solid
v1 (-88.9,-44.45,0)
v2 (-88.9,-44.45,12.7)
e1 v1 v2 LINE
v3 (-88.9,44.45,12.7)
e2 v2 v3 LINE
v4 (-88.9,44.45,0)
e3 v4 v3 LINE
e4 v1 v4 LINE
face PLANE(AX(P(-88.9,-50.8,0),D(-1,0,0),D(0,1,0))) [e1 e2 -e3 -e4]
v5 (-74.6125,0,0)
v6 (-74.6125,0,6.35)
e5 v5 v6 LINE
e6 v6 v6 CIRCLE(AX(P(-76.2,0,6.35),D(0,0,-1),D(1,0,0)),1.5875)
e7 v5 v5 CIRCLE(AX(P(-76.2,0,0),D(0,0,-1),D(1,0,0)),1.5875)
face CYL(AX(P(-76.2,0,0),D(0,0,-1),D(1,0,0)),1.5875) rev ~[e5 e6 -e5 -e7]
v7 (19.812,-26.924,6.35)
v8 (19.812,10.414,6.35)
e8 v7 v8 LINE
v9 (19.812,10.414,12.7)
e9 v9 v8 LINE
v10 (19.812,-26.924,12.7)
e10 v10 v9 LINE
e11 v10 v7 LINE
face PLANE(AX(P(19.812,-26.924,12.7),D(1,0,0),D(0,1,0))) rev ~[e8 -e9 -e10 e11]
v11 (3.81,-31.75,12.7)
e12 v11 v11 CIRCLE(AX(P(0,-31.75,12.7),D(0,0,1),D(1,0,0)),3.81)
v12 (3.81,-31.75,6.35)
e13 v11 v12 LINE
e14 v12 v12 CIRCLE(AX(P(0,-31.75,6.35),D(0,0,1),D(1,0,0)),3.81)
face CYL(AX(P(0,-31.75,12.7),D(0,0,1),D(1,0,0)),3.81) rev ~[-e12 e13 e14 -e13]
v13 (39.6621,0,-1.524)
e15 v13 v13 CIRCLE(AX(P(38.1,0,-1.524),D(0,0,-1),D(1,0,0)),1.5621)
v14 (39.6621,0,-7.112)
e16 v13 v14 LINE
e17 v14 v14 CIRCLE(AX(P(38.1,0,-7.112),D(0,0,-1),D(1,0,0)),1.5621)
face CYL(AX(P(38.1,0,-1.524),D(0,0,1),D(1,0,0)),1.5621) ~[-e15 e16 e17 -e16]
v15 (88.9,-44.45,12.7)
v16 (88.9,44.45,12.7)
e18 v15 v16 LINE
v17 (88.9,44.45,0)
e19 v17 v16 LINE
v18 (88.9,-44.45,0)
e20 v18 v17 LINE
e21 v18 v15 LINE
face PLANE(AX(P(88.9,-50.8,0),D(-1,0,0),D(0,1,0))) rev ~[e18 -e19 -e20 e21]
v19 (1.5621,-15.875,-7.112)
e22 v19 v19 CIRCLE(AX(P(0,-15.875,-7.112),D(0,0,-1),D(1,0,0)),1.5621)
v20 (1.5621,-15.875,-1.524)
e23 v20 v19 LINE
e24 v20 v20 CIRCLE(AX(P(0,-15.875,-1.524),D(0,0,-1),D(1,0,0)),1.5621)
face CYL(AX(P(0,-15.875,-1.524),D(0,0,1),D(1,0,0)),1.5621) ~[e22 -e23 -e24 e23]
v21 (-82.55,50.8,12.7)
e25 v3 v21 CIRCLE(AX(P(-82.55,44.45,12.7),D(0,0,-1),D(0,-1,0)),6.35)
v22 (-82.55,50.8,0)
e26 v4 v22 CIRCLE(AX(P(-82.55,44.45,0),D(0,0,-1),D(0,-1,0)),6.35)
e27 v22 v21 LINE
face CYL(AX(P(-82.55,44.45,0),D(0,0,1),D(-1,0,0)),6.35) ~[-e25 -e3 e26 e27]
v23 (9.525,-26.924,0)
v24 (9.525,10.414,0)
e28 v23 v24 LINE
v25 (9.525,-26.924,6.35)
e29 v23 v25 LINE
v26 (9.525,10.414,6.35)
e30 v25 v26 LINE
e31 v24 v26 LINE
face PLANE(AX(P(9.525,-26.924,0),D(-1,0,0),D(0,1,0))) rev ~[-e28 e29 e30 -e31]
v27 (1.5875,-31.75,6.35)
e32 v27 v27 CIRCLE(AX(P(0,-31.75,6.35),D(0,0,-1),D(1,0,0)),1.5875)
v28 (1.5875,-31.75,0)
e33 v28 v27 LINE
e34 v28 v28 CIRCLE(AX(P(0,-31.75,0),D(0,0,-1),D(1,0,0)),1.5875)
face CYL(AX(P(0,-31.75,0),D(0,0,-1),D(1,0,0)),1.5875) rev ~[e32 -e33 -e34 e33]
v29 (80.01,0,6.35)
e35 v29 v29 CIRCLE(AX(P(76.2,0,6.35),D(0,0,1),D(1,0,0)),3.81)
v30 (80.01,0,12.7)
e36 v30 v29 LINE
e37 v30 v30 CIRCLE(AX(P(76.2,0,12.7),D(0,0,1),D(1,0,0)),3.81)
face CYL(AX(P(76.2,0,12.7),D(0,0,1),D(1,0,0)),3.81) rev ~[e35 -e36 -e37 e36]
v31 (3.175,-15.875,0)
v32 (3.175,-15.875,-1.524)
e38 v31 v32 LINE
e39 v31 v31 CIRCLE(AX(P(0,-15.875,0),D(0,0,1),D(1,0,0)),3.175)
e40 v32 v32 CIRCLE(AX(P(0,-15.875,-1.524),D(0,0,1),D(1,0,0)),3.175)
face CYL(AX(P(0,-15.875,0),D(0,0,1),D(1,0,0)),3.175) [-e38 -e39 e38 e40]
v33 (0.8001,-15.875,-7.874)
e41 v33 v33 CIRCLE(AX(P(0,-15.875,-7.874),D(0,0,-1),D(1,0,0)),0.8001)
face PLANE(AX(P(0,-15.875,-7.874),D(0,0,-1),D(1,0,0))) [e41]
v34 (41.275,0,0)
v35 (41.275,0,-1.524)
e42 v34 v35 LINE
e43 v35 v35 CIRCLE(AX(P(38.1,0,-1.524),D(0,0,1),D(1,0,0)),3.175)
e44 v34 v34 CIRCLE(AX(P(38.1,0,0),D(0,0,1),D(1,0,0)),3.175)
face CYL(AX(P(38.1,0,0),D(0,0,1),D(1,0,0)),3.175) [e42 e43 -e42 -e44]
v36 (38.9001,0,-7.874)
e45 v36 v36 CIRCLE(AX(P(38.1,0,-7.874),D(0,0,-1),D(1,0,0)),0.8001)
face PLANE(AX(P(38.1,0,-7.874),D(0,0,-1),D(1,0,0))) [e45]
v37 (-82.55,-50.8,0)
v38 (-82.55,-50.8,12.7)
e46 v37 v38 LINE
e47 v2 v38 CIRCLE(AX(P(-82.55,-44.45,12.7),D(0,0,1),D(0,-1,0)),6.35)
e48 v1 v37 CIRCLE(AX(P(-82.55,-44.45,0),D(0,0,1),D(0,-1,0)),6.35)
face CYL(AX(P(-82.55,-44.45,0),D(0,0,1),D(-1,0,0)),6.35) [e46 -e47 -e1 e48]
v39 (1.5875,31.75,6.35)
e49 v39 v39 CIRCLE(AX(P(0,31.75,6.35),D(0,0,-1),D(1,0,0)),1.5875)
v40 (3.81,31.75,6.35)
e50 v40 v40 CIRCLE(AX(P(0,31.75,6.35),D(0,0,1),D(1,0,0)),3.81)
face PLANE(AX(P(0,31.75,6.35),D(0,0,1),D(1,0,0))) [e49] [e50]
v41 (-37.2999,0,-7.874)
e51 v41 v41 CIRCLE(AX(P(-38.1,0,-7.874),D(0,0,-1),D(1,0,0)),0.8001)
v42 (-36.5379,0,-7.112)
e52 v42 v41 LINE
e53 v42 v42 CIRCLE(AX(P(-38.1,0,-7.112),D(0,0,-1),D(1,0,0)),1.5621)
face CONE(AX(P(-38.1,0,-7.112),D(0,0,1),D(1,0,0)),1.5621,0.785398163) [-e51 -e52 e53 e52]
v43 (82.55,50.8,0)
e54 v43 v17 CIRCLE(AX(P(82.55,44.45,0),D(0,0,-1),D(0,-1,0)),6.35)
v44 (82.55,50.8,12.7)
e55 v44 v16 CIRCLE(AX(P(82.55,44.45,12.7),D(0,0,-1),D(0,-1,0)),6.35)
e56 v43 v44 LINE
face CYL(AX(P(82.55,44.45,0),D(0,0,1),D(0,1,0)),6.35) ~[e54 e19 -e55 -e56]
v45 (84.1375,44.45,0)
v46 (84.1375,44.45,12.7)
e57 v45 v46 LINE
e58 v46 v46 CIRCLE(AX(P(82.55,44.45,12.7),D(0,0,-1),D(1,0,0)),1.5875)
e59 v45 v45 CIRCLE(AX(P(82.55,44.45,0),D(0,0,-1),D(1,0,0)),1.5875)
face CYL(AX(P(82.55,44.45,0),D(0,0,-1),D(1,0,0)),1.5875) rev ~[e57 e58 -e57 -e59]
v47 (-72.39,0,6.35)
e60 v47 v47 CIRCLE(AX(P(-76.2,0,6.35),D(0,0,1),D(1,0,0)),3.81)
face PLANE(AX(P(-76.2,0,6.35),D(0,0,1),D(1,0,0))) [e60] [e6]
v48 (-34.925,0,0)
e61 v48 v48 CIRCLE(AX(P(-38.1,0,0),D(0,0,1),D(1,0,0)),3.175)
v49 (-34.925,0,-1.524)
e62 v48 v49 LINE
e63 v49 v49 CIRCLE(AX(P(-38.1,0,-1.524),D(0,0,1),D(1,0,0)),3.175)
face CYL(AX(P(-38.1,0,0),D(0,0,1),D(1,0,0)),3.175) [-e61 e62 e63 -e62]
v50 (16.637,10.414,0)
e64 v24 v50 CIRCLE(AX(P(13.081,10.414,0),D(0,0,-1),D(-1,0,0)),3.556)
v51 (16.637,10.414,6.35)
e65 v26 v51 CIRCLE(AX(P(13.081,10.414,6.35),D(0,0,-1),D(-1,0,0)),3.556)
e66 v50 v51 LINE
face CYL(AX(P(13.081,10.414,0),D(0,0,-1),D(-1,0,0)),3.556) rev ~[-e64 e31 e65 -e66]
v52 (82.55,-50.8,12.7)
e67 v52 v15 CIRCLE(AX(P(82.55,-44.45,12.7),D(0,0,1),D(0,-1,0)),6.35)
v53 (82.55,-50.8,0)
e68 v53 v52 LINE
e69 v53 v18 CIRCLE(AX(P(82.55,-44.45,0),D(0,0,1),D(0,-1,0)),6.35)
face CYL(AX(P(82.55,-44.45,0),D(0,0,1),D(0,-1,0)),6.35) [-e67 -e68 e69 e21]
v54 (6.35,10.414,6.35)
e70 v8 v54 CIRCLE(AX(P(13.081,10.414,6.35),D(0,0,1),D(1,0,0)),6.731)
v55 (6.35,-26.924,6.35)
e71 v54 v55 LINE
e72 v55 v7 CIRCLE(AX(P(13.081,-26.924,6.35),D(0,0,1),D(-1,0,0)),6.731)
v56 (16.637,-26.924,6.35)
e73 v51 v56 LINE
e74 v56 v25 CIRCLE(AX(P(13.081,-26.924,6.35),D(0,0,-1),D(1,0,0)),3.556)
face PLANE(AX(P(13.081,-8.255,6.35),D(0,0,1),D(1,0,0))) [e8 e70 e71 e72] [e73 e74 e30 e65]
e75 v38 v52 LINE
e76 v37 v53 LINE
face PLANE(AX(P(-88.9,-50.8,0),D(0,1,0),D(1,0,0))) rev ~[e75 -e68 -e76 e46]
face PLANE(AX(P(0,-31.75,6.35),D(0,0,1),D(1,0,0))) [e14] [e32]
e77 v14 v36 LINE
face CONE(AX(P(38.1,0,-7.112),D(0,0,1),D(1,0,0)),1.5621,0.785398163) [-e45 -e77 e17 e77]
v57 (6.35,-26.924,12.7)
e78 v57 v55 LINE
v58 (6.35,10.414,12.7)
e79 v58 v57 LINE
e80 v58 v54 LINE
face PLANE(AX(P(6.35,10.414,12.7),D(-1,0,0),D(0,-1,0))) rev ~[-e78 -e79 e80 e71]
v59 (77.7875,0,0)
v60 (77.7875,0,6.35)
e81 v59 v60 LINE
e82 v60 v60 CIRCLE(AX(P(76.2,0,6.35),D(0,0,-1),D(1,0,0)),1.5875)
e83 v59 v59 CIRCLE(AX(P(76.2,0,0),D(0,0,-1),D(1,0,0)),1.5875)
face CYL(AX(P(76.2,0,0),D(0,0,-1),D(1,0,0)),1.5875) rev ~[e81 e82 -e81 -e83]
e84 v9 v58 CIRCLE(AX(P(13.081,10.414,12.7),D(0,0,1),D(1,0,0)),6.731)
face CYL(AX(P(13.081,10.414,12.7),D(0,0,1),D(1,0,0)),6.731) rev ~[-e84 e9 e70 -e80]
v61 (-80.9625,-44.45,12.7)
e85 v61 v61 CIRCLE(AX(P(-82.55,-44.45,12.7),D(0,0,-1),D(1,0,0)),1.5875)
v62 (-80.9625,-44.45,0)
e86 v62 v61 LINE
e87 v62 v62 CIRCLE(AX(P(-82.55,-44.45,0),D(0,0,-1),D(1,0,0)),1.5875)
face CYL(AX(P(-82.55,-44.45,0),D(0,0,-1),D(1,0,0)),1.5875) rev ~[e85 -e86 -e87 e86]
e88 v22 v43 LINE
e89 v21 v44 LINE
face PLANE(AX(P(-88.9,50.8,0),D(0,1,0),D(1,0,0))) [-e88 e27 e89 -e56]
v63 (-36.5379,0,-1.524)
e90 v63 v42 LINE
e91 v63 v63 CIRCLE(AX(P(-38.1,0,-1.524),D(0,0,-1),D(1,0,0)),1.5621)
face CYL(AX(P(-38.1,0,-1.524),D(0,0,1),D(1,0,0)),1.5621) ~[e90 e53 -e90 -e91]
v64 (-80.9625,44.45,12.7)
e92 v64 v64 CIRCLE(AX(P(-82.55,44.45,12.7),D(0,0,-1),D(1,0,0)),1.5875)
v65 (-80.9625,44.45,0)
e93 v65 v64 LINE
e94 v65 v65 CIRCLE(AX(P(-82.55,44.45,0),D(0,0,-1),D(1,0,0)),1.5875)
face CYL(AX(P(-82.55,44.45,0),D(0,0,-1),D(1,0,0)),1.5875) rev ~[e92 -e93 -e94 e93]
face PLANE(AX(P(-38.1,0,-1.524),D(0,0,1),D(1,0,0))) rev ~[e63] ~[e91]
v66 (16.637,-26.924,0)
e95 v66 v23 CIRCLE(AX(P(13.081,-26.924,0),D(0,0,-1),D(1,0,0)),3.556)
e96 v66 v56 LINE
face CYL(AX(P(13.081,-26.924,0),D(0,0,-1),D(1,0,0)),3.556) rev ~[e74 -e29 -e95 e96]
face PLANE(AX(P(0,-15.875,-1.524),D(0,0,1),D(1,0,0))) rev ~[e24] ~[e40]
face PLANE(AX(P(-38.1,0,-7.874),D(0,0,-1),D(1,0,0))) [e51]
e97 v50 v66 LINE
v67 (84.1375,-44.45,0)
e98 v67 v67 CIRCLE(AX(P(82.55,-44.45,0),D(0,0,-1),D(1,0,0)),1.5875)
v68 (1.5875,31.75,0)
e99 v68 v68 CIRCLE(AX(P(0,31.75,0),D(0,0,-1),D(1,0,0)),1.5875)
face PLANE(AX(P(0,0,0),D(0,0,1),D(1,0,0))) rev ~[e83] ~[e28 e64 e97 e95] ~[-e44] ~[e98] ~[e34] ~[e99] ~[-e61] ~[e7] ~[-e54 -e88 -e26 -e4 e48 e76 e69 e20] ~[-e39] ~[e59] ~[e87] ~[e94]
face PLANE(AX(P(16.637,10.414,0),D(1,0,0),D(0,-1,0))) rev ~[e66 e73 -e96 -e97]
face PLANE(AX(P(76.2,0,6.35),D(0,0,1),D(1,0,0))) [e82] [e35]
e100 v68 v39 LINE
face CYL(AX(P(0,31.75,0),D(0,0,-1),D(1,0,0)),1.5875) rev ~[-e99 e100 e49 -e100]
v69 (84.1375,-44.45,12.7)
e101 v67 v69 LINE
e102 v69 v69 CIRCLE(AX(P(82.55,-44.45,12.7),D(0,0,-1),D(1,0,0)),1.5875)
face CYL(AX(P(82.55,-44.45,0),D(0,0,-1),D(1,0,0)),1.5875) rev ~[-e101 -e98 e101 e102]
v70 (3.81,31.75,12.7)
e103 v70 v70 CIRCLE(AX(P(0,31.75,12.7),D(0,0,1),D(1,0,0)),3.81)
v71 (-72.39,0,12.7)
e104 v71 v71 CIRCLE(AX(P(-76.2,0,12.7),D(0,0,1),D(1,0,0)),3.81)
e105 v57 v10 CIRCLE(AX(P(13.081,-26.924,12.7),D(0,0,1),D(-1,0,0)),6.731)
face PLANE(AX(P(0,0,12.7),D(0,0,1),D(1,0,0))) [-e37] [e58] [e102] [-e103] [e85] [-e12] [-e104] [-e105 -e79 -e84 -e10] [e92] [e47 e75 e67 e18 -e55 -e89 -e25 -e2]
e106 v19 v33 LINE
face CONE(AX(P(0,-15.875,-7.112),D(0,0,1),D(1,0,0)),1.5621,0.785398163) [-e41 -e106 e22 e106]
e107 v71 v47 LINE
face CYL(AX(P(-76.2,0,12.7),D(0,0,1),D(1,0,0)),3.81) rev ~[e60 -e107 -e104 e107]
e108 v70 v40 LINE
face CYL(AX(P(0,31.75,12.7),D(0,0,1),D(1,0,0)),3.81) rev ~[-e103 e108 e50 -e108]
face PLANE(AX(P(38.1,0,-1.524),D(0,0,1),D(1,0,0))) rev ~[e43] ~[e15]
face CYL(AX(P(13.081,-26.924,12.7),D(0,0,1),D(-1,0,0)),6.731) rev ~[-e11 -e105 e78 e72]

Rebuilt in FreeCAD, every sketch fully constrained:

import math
import FreeCAD as App
import Part
import Sketcher
from FreeCAD import Vector
Q = App.Units.Quantity


def edges_at(feature, points):
    """Names of the edges that pass closest to the given points."""
    edges = feature.Shape.Edges
    near = lambda p: min(range(len(edges)), key=lambda i: edges[i].distToShape(Part.Vertex(*p))[0])
    return sorted({f"Edge{near(p) + 1}" for p in points})


def add_polygon(sketch, points):
    """Adds a closed chain of lines whose ends are joined by coincident constraints."""
    first, n = sketch.GeometryCount, len(points)
    for a, b in zip(points, points[1:] + points[:1]):
        sketch.addGeometry(Part.LineSegment(App.Vector(*a, 0), App.Vector(*b, 0)), False)
    for i in range(n):
        sketch.addConstraint(Sketcher.Constraint("Coincident", first + i, 2, first + (i + 1) % n, 1))

doc = App.newDocument("Part")
body = doc.addObject("PartDesign::Body", "Body")

sketch1 = body.newObject("Sketcher::SketchObject", "Sketch")
sketch1.AttachmentSupport = (doc.getObject("XY_Plane"), [""])
sketch1.MapMode = "FlatFace"
add_polygon(sketch1, [(-88.9, 50.8), (-88.9, -50.8), (88.9, -50.8), (88.9, 50.8)])
sketch1.addConstraint(Sketcher.Constraint("Vertical", 0))
sketch1.addConstraint(Sketcher.Constraint("Horizontal", 1))
sketch1.addConstraint(Sketcher.Constraint("Vertical", 2))
sketch1.addConstraint(Sketcher.Constraint("Horizontal", 3))
sketch1.addConstraint(Sketcher.Constraint("Symmetric", 0, 2, 2, 2, -1, 1))
sketch1.addConstraint(Sketcher.Constraint("DistanceX", 1, 1, 1, 2, Q("7 in")))
sketch1.addConstraint(Sketcher.Constraint("DistanceY", 0, 2, 0, 1, Q("4 in")))
pad1 = body.newObject("PartDesign::Pad", "Pad")
pad1.Profile = sketch1
pad1.Length = Q("0.5 in")

sketch2 = body.newObject("Sketcher::SketchObject", "Sketch001")
sketch2.AttachmentSupport = (doc.getObject("XY_Plane"), [""])
sketch2.MapMode = "FlatFace"
sketch2.addGeometry(Part.Circle(Vector(-38.1, 0, 0), Vector(0, 0, 1), 3.175), False)
sketch2.addGeometry(Part.Circle(Vector(38.1, 0, 0), Vector(0, 0, 1), 3.175), False)
sketch2.addGeometry(Part.Circle(Vector(0, -15.875, 0), Vector(0, 0, 1), 3.175), False)
sketch2.addConstraint(Sketcher.Constraint("Equal", 0, 1))
sketch2.addConstraint(Sketcher.Constraint("Equal", 1, 2))
sketch2.addConstraint(Sketcher.Constraint("Symmetric", 0, 3, 1, 3, -1, 1))
sketch2.addConstraint(Sketcher.Constraint("PointOnObject", 0, 3, -1))
sketch2.addConstraint(Sketcher.Constraint("PointOnObject", 2, 3, -2))
sketch2.addConstraint(Sketcher.Constraint("Diameter", 0, Q("0.25 in")))
sketch2.addConstraint(Sketcher.Constraint("DistanceX", 0, 3, 1, 3, Q("3 in")))
sketch2.addConstraint(Sketcher.Constraint("DistanceY", 2, 3, -1, 1, Q("0.625 in")))
pad2 = body.newObject("PartDesign::Pad", "Pad001")
pad2.Profile = sketch2
pad2.Length = Q("0.06 in")
pad2.Reversed = True

sketch3 = body.newObject("Sketcher::SketchObject", "Sketch002")
sketch3.AttachmentSupport = (doc.getObject("XY_Plane"), [""])
sketch3.MapMode = "FlatFace"
sketch3.AttachmentOffset = App.Placement(Vector(0, 0, -0.06 * 25.4), App.Rotation())
sketch3.addGeometry(Part.Circle(Vector(-38.1, 0, 0), Vector(0, 0, 1), 1.5621), False)
sketch3.addGeometry(Part.Circle(Vector(38.1, 0, 0), Vector(0, 0, 1), 1.5621), False)
sketch3.addGeometry(Part.Circle(Vector(0, -15.875, 0), Vector(0, 0, 1), 1.5621), False)
sketch3.addConstraint(Sketcher.Constraint("Equal", 0, 1))
sketch3.addConstraint(Sketcher.Constraint("Equal", 1, 2))
sketch3.addConstraint(Sketcher.Constraint("Symmetric", 0, 3, 1, 3, -1, 1))
sketch3.addConstraint(Sketcher.Constraint("PointOnObject", 0, 3, -1))
sketch3.addConstraint(Sketcher.Constraint("PointOnObject", 2, 3, -2))
sketch3.addConstraint(Sketcher.Constraint("Diameter", 0, Q("0.123 in")))
sketch3.addConstraint(Sketcher.Constraint("DistanceX", 0, 3, 1, 3, Q("3 in")))
sketch3.addConstraint(Sketcher.Constraint("DistanceY", 2, 3, -1, 1, Q("0.625 in")))
pad3 = body.newObject("PartDesign::Pad", "Pad002")
pad3.Profile = sketch3
pad3.Length = Q("0.25 in")
pad3.Reversed = True
doc.recompute()

chamfer = body.newObject("PartDesign::Chamfer", "Chamfer")
chamfer.Base = (pad3, edges_at(pad3, [(-39.662, 0, -7.874), (-1.562, -15.875, -7.874), (36.538, 0, -7.874)]))
chamfer.Size = Q("0.03 in")
doc.recompute()

fillet = body.newObject("PartDesign::Fillet", "Fillet")
fillet.Base = (chamfer, edges_at(chamfer, [
    (-88.9, -50.8, 6.35),
    (88.9, -50.8, 6.35),
    (88.9, 50.8, 6.35),
    (-88.9, 50.8, 6.35),
]))
fillet.Radius = Q("0.25 in")

sketch4 = body.newObject("Sketcher::SketchObject", "Sketch003")
sketch4.AttachmentSupport = (doc.getObject("XY_Plane"), [""])
sketch4.MapMode = "FlatFace"
sketch4.addGeometry(Part.Circle(Vector(82.55, -44.45, 0), Vector(0, 0, 1), 1.5875), False)
sketch4.addGeometry(Part.Circle(Vector(82.55, 44.45, 0), Vector(0, 0, 1), 1.5875), False)
sketch4.addGeometry(Part.Circle(Vector(-82.55, 44.45, 0), Vector(0, 0, 1), 1.5875), False)
sketch4.addGeometry(Part.Circle(Vector(-82.55, -44.45, 0), Vector(0, 0, 1), 1.5875), False)
sketch4.addConstraint(Sketcher.Constraint("Equal", 0, 1))
sketch4.addConstraint(Sketcher.Constraint("Equal", 1, 2))
sketch4.addConstraint(Sketcher.Constraint("Equal", 2, 3))
sketch4.addConstraint(Sketcher.Constraint("Symmetric", 0, 3, 2, 3, -1, 1))
sketch4.addConstraint(Sketcher.Constraint("Symmetric", 1, 3, 3, 3, -1, 1))
sketch4.addConstraint(Sketcher.Constraint("Symmetric", 1, 3, 2, 3, -2))
sketch4.addConstraint(Sketcher.Constraint("Diameter", 0, Q("0.125 in")))
sketch4.addConstraint(Sketcher.Constraint("DistanceY", 0, 3, 1, 3, Q("3.5 in")))
sketch4.addConstraint(Sketcher.Constraint("DistanceX", 2, 3, 1, 3, Q("6.5 in")))
pocket1 = body.newObject("PartDesign::Pocket", "Pocket")
pocket1.Profile = sketch4
pocket1.Type = "ThroughAll"
pocket1.Reversed = True

sketch5 = body.newObject("Sketcher::SketchObject", "Sketch004")
sketch5.AttachmentSupport = (doc.getObject("XY_Plane"), [""])
sketch5.MapMode = "FlatFace"
sketch5.addGeometry(Part.Circle(Vector(0, -31.75, 0), Vector(0, 0, 1), 1.5875), False)
sketch5.addGeometry(Part.Circle(Vector(0, 31.75, 0), Vector(0, 0, 1), 1.5875), False)
sketch5.addConstraint(Sketcher.Constraint("Equal", 0, 1))
sketch5.addConstraint(Sketcher.Constraint("Symmetric", 0, 3, 1, 3, -1, 1))
sketch5.addConstraint(Sketcher.Constraint("PointOnObject", 0, 3, -2))
sketch5.addConstraint(Sketcher.Constraint("Diameter", 0, Q("0.125 in")))
sketch5.addConstraint(Sketcher.Constraint("DistanceY", 0, 3, 1, 3, Q("2.5 in")))
pocket2 = body.newObject("PartDesign::Pocket", "Pocket001")
pocket2.Profile = sketch5
pocket2.Type = "ThroughAll"
pocket2.Reversed = True

sketch6 = body.newObject("Sketcher::SketchObject", "Sketch005")
sketch6.AttachmentSupport = (doc.getObject("XY_Plane"), [""])
sketch6.MapMode = "FlatFace"
sketch6.AttachmentOffset = App.Placement(Vector(0, 0, 0.5 * 25.4), App.Rotation())
sketch6.addGeometry(Part.Circle(Vector(0, 31.75, 0), Vector(0, 0, 1), 3.81), False)
sketch6.addGeometry(Part.Circle(Vector(0, -31.75, 0), Vector(0, 0, 1), 3.81), False)
sketch6.addConstraint(Sketcher.Constraint("Equal", 0, 1))
sketch6.addConstraint(Sketcher.Constraint("Symmetric", 0, 3, 1, 3, -1, 1))
sketch6.addConstraint(Sketcher.Constraint("PointOnObject", 0, 3, -2))
sketch6.addConstraint(Sketcher.Constraint("Diameter", 0, Q("0.3 in")))
sketch6.addConstraint(Sketcher.Constraint("DistanceY", 1, 3, 0, 3, Q("2.5 in")))
pocket3 = body.newObject("PartDesign::Pocket", "Pocket002")
pocket3.Profile = sketch6
pocket3.Length = Q("0.25 in")

sketch7 = body.newObject("Sketcher::SketchObject", "Sketch006")
sketch7.AttachmentSupport = (doc.getObject("XY_Plane"), [""])
sketch7.MapMode = "FlatFace"
sketch7.addGeometry(Part.ArcOfCircle(Part.Circle(Vector(13.081, -26.924, 0), Vector(0, 0, 1), 3.556), math.radians(180), math.radians(360)), False)
sketch7.addGeometry(Part.LineSegment(Vector(9.525, -26.924, 0), Vector(9.525, 10.414, 0)), False)
sketch7.addGeometry(Part.ArcOfCircle(Part.Circle(Vector(13.081, 10.414, 0), Vector(0, 0, 1), 3.556), math.radians(0), math.radians(180)), False)
sketch7.addGeometry(Part.LineSegment(Vector(16.637, 10.414, 0), Vector(16.637, -26.924, 0)), False)
sketch7.addConstraint(Sketcher.Constraint("Tangent", 0, 1, 1, 1))
sketch7.addConstraint(Sketcher.Constraint("Tangent", 1, 2, 2, 2))
sketch7.addConstraint(Sketcher.Constraint("Tangent", 2, 1, 3, 1))
sketch7.addConstraint(Sketcher.Constraint("Tangent", 3, 2, 0, 2))
sketch7.addConstraint(Sketcher.Constraint("Vertical", 1))
sketch7.addConstraint(Sketcher.Constraint("Vertical", 3))
sketch7.addConstraint(Sketcher.Constraint("Radius", 0, Q("0.14 in")))
sketch7.addConstraint(Sketcher.Constraint("DistanceY", 1, 1, 1, 2, Q("1.47 in")))
sketch7.addConstraint(Sketcher.Constraint("DistanceY", 0, 3, -1, 1, Q("1.06 in")))
sketch7.addConstraint(Sketcher.Constraint("DistanceX", -1, 1, 0, 3, Q("0.515 in")))
pocket4 = body.newObject("PartDesign::Pocket", "Pocket003")
pocket4.Profile = sketch7
pocket4.Type = "ThroughAll"
pocket4.Reversed = True

sketch8 = body.newObject("Sketcher::SketchObject", "Sketch007")
sketch8.AttachmentSupport = (doc.getObject("XY_Plane"), [""])
sketch8.MapMode = "FlatFace"
sketch8.AttachmentOffset = App.Placement(Vector(0, 0, 0.5 * 25.4), App.Rotation())
sketch8.addGeometry(Part.LineSegment(Vector(19.812, -26.924, 0), Vector(19.812, 10.414, 0)), False)
sketch8.addGeometry(Part.ArcOfCircle(Part.Circle(Vector(13.081, 10.414, 0), Vector(0, 0, 1), 6.731), math.radians(0), math.radians(180)), False)
sketch8.addGeometry(Part.LineSegment(Vector(6.35, 10.414, 0), Vector(6.35, -26.924, 0)), False)
sketch8.addGeometry(Part.ArcOfCircle(Part.Circle(Vector(13.081, -26.924, 0), Vector(0, 0, 1), 6.731), math.radians(180), math.radians(360)), False)
sketch8.addConstraint(Sketcher.Constraint("Tangent", 0, 2, 1, 1))
sketch8.addConstraint(Sketcher.Constraint("Tangent", 1, 2, 2, 1))
sketch8.addConstraint(Sketcher.Constraint("Tangent", 2, 2, 3, 1))
sketch8.addConstraint(Sketcher.Constraint("Tangent", 3, 2, 0, 1))
sketch8.addConstraint(Sketcher.Constraint("Vertical", 0))
sketch8.addConstraint(Sketcher.Constraint("Vertical", 2))
sketch8.addConstraint(Sketcher.Constraint("Radius", 1, Q("0.265 in")))
sketch8.addConstraint(Sketcher.Constraint("DistanceY", 0, 1, 0, 2, Q("1.47 in")))
sketch8.addConstraint(Sketcher.Constraint("DistanceY", -1, 1, 1, 3, Q("0.41 in")))
sketch8.addConstraint(Sketcher.Constraint("DistanceX", -1, 1, 0, 2, Q("0.78 in")))
pocket5 = body.newObject("PartDesign::Pocket", "Pocket004")
pocket5.Profile = sketch8
pocket5.Length = Q("0.25 in")

sketch9 = body.newObject("Sketcher::SketchObject", "Sketch008")
sketch9.AttachmentSupport = (doc.getObject("XY_Plane"), [""])
sketch9.MapMode = "FlatFace"
sketch9.addGeometry(Part.Circle(Vector(76.2, 0, 0), Vector(0, 0, 1), 1.5875), False)
sketch9.addGeometry(Part.Circle(Vector(-76.2, 0, 0), Vector(0, 0, 1), 1.5875), False)
sketch9.addConstraint(Sketcher.Constraint("Equal", 0, 1))
sketch9.addConstraint(Sketcher.Constraint("Symmetric", 0, 3, 1, 3, -1, 1))
sketch9.addConstraint(Sketcher.Constraint("PointOnObject", 0, 3, -1))
sketch9.addConstraint(Sketcher.Constraint("Diameter", 0, Q("0.125 in")))
sketch9.addConstraint(Sketcher.Constraint("DistanceX", -1, 1, 0, 3, Q("3 in")))
pocket6 = body.newObject("PartDesign::Pocket", "Pocket005")
pocket6.Profile = sketch9
pocket6.Type = "ThroughAll"
pocket6.Reversed = True

sketch10 = body.newObject("Sketcher::SketchObject", "Sketch009")
sketch10.AttachmentSupport = (doc.getObject("XY_Plane"), [""])
sketch10.MapMode = "FlatFace"
sketch10.AttachmentOffset = App.Placement(Vector(0, 0, 0.5 * 25.4), App.Rotation())
sketch10.addGeometry(Part.Circle(Vector(-76.2, 0, 0), Vector(0, 0, 1), 3.81), False)
sketch10.addGeometry(Part.Circle(Vector(76.2, 0, 0), Vector(0, 0, 1), 3.81), False)
sketch10.addConstraint(Sketcher.Constraint("Equal", 0, 1))
sketch10.addConstraint(Sketcher.Constraint("Symmetric", 0, 3, 1, 3, -1, 1))
sketch10.addConstraint(Sketcher.Constraint("PointOnObject", 0, 3, -1))
sketch10.addConstraint(Sketcher.Constraint("Diameter", 0, Q("0.3 in")))
sketch10.addConstraint(Sketcher.Constraint("DistanceX", 0, 3, -1, 1, Q("3 in")))
pocket7 = body.newObject("PartDesign::Pocket", "Pocket006")
pocket7.Profile = sketch10
pocket7.Length = Q("0.25 in")

doc.recompute()
